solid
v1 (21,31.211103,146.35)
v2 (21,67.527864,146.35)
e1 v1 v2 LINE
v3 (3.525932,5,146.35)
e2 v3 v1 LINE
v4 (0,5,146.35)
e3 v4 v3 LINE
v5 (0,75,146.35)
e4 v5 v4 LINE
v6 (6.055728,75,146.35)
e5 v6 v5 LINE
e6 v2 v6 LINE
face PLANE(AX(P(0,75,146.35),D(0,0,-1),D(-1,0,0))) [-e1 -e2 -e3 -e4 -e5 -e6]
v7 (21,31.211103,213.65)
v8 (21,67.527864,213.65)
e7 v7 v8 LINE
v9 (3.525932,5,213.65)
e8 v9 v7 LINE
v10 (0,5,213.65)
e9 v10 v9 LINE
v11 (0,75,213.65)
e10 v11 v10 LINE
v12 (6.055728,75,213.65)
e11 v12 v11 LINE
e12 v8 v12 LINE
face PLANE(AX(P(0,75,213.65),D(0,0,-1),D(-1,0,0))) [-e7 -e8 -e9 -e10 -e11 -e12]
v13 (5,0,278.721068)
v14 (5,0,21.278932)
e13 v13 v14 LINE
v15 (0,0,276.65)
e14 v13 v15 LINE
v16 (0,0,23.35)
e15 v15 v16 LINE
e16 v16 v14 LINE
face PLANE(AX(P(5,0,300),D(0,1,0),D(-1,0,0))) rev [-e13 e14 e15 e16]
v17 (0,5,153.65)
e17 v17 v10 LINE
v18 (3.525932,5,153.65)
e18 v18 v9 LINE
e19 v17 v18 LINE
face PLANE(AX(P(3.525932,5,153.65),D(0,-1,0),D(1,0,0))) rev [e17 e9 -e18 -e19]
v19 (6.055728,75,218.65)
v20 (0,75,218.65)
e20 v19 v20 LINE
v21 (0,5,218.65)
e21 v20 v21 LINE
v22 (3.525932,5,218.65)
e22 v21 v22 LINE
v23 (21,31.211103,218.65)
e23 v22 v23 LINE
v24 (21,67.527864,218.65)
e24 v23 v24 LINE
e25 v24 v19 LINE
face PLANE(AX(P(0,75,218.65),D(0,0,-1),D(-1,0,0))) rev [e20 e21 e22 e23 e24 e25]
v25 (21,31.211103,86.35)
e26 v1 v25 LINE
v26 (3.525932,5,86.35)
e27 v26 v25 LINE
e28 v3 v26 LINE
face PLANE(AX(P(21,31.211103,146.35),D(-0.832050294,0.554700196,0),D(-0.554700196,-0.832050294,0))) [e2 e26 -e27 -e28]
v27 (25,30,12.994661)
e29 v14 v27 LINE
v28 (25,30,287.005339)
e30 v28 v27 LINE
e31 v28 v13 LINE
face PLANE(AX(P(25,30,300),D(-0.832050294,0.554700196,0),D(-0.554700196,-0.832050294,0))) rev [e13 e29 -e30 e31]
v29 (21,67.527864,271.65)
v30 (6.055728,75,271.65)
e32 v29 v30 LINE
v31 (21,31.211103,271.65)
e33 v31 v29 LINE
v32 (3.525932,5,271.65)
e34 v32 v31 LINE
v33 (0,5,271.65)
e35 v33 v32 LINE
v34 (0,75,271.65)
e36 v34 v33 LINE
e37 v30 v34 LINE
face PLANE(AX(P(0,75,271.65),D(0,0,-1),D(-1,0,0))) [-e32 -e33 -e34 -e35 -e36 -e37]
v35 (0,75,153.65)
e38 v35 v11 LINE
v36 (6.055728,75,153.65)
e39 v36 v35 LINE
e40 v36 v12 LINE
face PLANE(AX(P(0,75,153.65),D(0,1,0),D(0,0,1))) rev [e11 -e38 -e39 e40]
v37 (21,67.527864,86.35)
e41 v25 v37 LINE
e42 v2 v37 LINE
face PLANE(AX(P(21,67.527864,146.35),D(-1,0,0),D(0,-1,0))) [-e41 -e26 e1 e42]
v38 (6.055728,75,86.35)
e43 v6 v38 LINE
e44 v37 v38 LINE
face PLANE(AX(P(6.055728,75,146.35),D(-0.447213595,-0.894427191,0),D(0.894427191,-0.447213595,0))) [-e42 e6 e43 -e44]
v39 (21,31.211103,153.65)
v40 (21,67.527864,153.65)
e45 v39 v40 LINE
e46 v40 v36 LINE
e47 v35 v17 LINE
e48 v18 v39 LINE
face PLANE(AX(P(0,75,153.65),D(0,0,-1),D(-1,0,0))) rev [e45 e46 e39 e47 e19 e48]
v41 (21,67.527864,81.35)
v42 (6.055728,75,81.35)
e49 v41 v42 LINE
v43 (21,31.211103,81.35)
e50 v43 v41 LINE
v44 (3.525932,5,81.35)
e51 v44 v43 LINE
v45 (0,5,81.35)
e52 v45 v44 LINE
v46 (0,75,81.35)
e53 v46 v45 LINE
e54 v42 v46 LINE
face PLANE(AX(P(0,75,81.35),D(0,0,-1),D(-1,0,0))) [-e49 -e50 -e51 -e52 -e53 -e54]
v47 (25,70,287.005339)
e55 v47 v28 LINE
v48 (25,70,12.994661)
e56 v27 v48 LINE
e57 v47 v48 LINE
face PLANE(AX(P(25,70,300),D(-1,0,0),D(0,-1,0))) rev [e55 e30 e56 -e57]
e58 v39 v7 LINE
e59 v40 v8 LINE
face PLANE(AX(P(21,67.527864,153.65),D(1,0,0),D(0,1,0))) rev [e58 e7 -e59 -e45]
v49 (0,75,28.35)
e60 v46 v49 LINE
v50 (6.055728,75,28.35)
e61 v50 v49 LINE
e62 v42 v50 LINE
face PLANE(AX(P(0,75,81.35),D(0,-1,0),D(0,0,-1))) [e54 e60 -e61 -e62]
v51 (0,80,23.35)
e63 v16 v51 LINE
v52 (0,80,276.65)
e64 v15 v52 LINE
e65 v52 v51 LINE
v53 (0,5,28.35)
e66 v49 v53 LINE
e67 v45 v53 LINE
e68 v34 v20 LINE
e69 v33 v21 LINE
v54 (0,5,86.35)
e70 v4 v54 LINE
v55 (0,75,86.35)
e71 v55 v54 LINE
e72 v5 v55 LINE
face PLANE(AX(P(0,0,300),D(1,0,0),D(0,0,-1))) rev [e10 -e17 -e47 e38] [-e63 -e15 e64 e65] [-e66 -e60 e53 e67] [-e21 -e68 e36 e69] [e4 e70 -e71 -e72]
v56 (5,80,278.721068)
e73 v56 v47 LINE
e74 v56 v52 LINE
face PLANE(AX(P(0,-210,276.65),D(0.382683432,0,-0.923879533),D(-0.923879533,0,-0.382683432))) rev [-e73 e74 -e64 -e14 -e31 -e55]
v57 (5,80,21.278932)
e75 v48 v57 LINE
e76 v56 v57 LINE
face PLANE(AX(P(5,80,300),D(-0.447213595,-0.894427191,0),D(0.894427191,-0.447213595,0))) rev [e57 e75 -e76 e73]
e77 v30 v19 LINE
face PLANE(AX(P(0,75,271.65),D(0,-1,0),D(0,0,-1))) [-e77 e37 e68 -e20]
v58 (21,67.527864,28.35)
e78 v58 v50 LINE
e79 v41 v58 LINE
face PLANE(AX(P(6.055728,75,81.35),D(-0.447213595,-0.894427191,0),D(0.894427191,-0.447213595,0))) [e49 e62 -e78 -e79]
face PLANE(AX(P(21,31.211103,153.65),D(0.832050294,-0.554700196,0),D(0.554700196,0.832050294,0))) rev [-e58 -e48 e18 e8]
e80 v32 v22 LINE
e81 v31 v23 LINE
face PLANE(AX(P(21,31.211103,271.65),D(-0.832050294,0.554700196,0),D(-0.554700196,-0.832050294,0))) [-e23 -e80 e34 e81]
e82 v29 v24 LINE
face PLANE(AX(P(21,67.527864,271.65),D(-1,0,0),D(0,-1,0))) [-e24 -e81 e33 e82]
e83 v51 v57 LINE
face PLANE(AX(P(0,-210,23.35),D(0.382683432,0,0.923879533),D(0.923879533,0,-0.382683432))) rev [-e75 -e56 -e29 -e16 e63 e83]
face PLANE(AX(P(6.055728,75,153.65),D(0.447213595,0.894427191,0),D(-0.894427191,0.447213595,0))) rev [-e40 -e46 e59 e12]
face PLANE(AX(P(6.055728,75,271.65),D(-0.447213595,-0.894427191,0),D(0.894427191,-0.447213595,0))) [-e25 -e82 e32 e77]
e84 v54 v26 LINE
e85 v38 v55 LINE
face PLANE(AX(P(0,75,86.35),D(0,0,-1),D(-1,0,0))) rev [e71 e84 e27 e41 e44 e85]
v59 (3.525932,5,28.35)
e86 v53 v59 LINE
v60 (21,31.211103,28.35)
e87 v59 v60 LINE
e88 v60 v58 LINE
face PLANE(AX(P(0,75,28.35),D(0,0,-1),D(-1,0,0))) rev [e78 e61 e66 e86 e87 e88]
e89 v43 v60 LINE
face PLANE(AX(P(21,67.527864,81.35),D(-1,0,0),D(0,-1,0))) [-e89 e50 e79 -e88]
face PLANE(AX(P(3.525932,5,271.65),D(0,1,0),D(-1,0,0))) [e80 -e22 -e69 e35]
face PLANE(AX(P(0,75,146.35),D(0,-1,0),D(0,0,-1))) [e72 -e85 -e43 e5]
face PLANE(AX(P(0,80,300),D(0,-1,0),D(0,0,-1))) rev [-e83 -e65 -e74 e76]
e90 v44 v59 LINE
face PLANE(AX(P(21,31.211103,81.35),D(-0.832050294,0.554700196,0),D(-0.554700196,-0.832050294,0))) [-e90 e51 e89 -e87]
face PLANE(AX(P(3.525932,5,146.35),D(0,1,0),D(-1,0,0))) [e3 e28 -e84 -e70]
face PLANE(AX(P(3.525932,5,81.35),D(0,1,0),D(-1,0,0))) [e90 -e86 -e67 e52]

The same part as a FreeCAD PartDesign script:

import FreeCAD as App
import Part
import Sketcher
from FreeCAD import Vector
Q = App.Units.Quantity


def add_polygon(sketch, points):
    """Adds a closed chain of lines whose ends are joined by coincident constraints."""
    first, n = sketch.GeometryCount, len(points)
    for a, b in zip(points, points[1:] + points[:1]):
        sketch.addGeometry(Part.LineSegment(App.Vector(*a, 0), App.Vector(*b, 0)), False)
    for i in range(n):
        sketch.addConstraint(Sketcher.Constraint("Coincident", first + i, 2, first + (i + 1) % n, 1))

doc = App.newDocument("Part")
body = doc.addObject("PartDesign::Body", "Body")

sketch1 = body.newObject("Sketcher::SketchObject", "Sketch")
sketch1.AttachmentSupport = (doc.getObject("XY_Plane"), [""])
sketch1.MapMode = "FlatFace"
add_polygon(sketch1, [(0, 80), (0, 0), (5, 0), (25, 30), (25, 70), (5, 80)])
sketch1.addConstraint([
    Sketcher.Constraint("Vertical", 0),
    Sketcher.Constraint("Horizontal", 1),
    Sketcher.Constraint("Vertical", 3),
    Sketcher.Constraint("Horizontal", 5),
    Sketcher.Constraint("Coincident", 0, 2, -1, 1),
    Sketcher.Constraint("Vertical", 1, 2, 4, 2),
    Sketcher.Constraint("DistanceX", 1, 1, 1, 2, Q("5 mm")),
    Sketcher.Constraint("DistanceY", 0, 2, 0, 1, Q("80 mm")),
    Sketcher.Constraint("DistanceY", 3, 1, 3, 2, Q("40 mm")),
    Sketcher.Constraint("DistanceX", -1, 1, 2, 2, Q("25 mm")),
    Sketcher.Constraint("DistanceY", -1, 1, 2, 2, Q("30 mm")),
])
pad1 = body.newObject("PartDesign::Pad", "Pad")
pad1.Profile = sketch1
pad1.Length = 300

sketch2 = body.newObject("Sketcher::SketchObject", "Sketch001")
sketch2.AttachmentSupport = (doc.getObject("XZ_Plane"), [""])
sketch2.MapMode = "FlatFace"
sketch2.AttachmentOffset = App.Placement(Vector(0, 0, -80), App.Rotation())
add_polygon(sketch2, [(137, 333), (0, 277), (0, 333)])
add_polygon(sketch2, [(0, 23), (108, -21), (0, -21)])
sketch2.addConstraint([
    Sketcher.Constraint("Vertical", 1),
    Sketcher.Constraint("Horizontal", 2),
    Sketcher.Constraint("Horizontal", 4),
    Sketcher.Constraint("Vertical", 5),
    Sketcher.Constraint("PointOnObject", 0, 2, -2),
    Sketcher.Constraint("PointOnObject", 4, 2, -2),
    Sketcher.Constraint("Angle", 0, Q("-157.5 deg")),
    Sketcher.Constraint("Angle", 3, Q("-22.5 deg")),
    Sketcher.Constraint("DistanceY", 5, 2, 0, 2, Q("253.3 mm")),
    Sketcher.Constraint("DistanceY", -1, 1, 0, 2, Q("276.65 mm")),
    Sketcher.Constraint("DistanceY", 1, 1, 1, 2, Q("56.671268 mm")),
    Sketcher.Constraint("DistanceY", 5, 1, 5, 2, Q("44.53964 mm")),
])
pocket1 = body.newObject("PartDesign::Pocket", "Pocket")
pocket1.Profile = sketch2
pocket1.Length = 290
pocket1.Reversed = True

sketch3 = body.newObject("Sketcher::SketchObject", "Sketch002")
sketch3.AttachmentSupport = (doc.getObject("XY_Plane"), [""])
sketch3.MapMode = "FlatFace"
sketch3.AttachmentOffset = App.Placement(Vector(0, 0, 28.35), App.Rotation())
add_polygon(sketch3, [(6.1, 75), (0, 75), (0, 5), (3.5, 5), (21, 31.2), (21, 67.5)])
sketch3.addConstraint([
    Sketcher.Constraint("Horizontal", 0),
    Sketcher.Constraint("Vertical", 1),
    Sketcher.Constraint("Horizontal", 2),
    Sketcher.Constraint("Vertical", 4),
    Sketcher.Constraint("PointOnObject", 0, 2, -2),
    Sketcher.Constraint("DistanceY", 1, 2, 1, 1, Q("70 mm")),
    Sketcher.Constraint("DistanceY", -1, 1, 0, 2, Q("75 mm")),
    Sketcher.Constraint("DistanceX", -1, 1, 3, 2, Q("21 mm")),
    Sketcher.Constraint("DistanceX", 0, 2, 0, 1, Q("6.055728 mm")),
    Sketcher.Constraint("DistanceX", 2, 1, 2, 2, Q("3.525932 mm")),
    Sketcher.Constraint("DistanceY", 4, 1, 4, 2, Q("36.316761 mm")),
    Sketcher.Constraint("Distance", 3, Q("31.501825 mm")),
])
pocket2 = body.newObject("PartDesign::Pocket", "Pocket001")
pocket2.Profile = sketch3
pocket2.Length = 53
pocket2.Reversed = True

sketch4 = body.newObject("Sketcher::SketchObject", "Sketch003")
sketch4.AttachmentSupport = (doc.getObject("XY_Plane"), [""])
sketch4.MapMode = "FlatFace"
sketch4.AttachmentOffset = App.Placement(Vector(0, 0, 86.35), App.Rotation())
add_polygon(sketch4, [(6.1, 75), (0, 75), (0, 5), (3.5, 5), (21, 31.2), (21, 67.5)])
sketch4.addConstraint([
    Sketcher.Constraint("Horizontal", 0),
    Sketcher.Constraint("Vertical", 1),
    Sketcher.Constraint("Horizontal", 2),
    Sketcher.Constraint("Vertical", 4),
    Sketcher.Constraint("PointOnObject", 0, 2, -2),
    Sketcher.Constraint("DistanceY", 1, 2, 1, 1, Q("70 mm")),
    Sketcher.Constraint("DistanceY", -1, 1, 0, 2, Q("75 mm")),
    Sketcher.Constraint("DistanceX", -1, 1, 3, 2, Q("21 mm")),
    Sketcher.Constraint("DistanceX", 0, 2, 0, 1, Q("6.055728 mm")),
    Sketcher.Constraint("DistanceX", 2, 1, 2, 2, Q("3.525932 mm")),
    Sketcher.Constraint("DistanceY", 4, 1, 4, 2, Q("36.316761 mm")),
    Sketcher.Constraint("Distance", 3, Q("31.501825 mm")),
])
pocket3 = body.newObject("PartDesign::Pocket", "Pocket002")
pocket3.Profile = sketch4
pocket3.Length = 60
pocket3.Reversed = True

sketch5 = body.newObject("Sketcher::SketchObject", "Sketch004")
sketch5.AttachmentSupport = (doc.getObject("XY_Plane"), [""])
sketch5.MapMode = "FlatFace"
sketch5.AttachmentOffset = App.Placement(Vector(0, 0, 218.65), App.Rotation())
add_polygon(sketch5, [(6.1, 75), (0, 75), (0, 5), (3.5, 5), (21, 31.2), (21, 67.5)])
sketch5.addConstraint([
    Sketcher.Constraint("Horizontal", 0),
    Sketcher.Constraint("Vertical", 1),
    Sketcher.Constraint("Horizontal", 2),
    Sketcher.Constraint("Vertical", 4),
    Sketcher.Constraint("PointOnObject", 0, 2, -2),
    Sketcher.Constraint("DistanceY", 1, 2, 1, 1, Q("70 mm")),
    Sketcher.Constraint("DistanceY", -1, 1, 0, 2, Q("75 mm")),
    Sketcher.Constraint("DistanceX", -1, 1, 3, 2, Q("21 mm")),
    Sketcher.Constraint("DistanceX", 0, 2, 0, 1, Q("6.055728 mm")),
    Sketcher.Constraint("DistanceX", 2, 1, 2, 2, Q("3.525932 mm")),
    Sketcher.Constraint("DistanceY", 4, 1, 4, 2, Q("36.316761 mm")),
    Sketcher.Constraint("Distance", 3, Q("31.501825 mm")),
])
pocket4 = body.newObject("PartDesign::Pocket", "Pocket003")
pocket4.Profile = sketch5
pocket4.Length = 53
pocket4.Reversed = True

sketch6 = body.newObject("Sketcher::SketchObject", "Sketch005")
sketch6.AttachmentSupport = (doc.getObject("XY_Plane"), [""])
sketch6.MapMode = "FlatFace"
sketch6.AttachmentOffset = App.Placement(Vector(0, 0, 213.65), App.Rotation())
add_polygon(sketch6, [(6.1, 75), (0, 75), (0, 5), (3.5, 5), (21, 31.2), (21, 67.5)])
sketch6.addConstraint([
    Sketcher.Constraint("Horizontal", 0),
    Sketcher.Constraint("Vertical", 1),
    Sketcher.Constraint("Horizontal", 2),
    Sketcher.Constraint("Vertical", 4),
    Sketcher.Constraint("PointOnObject", 0, 2, -2),
    Sketcher.Constraint("DistanceY", 1, 2, 1, 1, Q("70 mm")),
    Sketcher.Constraint("DistanceY", -1, 1, 0, 2, Q("75 mm")),
    Sketcher.Constraint("DistanceX", -1, 1, 3, 2, Q("21 mm")),
    Sketcher.Constraint("DistanceX", 0, 2, 0, 1, Q("6.055728 mm")),
    Sketcher.Constraint("DistanceX", 2, 1, 2, 2, Q("3.525932 mm")),
    Sketcher.Constraint("DistanceY", 4, 1, 4, 2, Q("36.316761 mm")),
    Sketcher.Constraint("Distance", 3, Q("31.501825 mm")),
])
pocket5 = body.newObject("PartDesign::Pocket", "Pocket004")
pocket5.Profile = sketch6
pocket5.Length = 60

doc.recompute()
